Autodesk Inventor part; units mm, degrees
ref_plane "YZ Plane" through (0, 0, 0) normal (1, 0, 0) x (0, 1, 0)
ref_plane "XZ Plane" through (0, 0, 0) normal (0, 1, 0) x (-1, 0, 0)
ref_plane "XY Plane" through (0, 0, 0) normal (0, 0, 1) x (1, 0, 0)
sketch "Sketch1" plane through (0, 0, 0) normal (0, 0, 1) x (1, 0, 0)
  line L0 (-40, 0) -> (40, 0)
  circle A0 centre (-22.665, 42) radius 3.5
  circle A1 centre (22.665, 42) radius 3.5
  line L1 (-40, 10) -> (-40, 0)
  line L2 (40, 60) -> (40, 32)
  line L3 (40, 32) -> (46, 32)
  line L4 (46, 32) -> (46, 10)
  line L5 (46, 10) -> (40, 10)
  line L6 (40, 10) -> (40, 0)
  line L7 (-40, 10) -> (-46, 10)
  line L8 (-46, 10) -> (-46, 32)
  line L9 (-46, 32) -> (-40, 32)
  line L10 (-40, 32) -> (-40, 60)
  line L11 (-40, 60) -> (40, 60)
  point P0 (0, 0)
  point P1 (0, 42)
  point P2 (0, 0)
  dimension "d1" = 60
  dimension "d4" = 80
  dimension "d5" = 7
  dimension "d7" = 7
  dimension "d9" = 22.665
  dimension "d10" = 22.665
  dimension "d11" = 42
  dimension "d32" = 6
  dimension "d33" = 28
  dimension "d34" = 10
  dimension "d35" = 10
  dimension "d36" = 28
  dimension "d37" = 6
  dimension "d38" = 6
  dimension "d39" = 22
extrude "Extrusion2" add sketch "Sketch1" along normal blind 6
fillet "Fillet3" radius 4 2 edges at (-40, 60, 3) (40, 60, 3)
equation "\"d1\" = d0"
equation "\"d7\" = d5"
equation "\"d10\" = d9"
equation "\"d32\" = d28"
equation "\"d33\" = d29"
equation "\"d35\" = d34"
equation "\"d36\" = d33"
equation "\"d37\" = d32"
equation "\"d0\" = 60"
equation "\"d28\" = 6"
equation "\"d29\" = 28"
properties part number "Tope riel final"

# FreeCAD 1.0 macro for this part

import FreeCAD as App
import Part
import Sketcher
Q = App.Units.Quantity


def edges_at(feature, points):
    """Names of the edges that pass closest to the given points."""
    edges = feature.Shape.Edges
    near = lambda p: min(range(len(edges)), key=lambda i: edges[i].distToShape(Part.Vertex(*p))[0])
    return sorted({f"Edge{near(p) + 1}" for p in points})


def add_polygon(sketch, points):
    """Adds a closed chain of lines whose ends are joined by coincident constraints."""
    first, n = sketch.GeometryCount, len(points)
    for a, b in zip(points, points[1:] + points[:1]):
        sketch.addGeometry(Part.LineSegment(App.Vector(*a, 0), App.Vector(*b, 0)), False)
    for i in range(n):
        sketch.addConstraint(Sketcher.Constraint("Coincident", first + i, 2, first + (i + 1) % n, 1))

doc = App.newDocument("Part")
body = doc.addObject("PartDesign::Body", "Body")

# Sketch on XY plane
sketch1 = doc.addObject("Sketcher::SketchObject", "Sketch")
body.addObject(sketch1)
sketch1.AttachmentSupport = (doc.XY_Plane, [""])
sketch1.MapMode = "FlatFace"
add_polygon(sketch1, [(-40, 10), (-40, 0), (40, 0), (40, 10), (46, 10), (46, 32), (40, 32), (40, 60), (-40, 60), (-40, 32), (-46, 32), (-46, 10)])  # lines 0-11
sketch1.addGeometry(Part.Circle(App.Vector(-22.7, 42, 0), App.Vector(0, 0, 1), 3.5), False)  # 12
sketch1.addGeometry(Part.Circle(App.Vector(22.7, 42, 0), App.Vector(0, 0, 1), 3.5), False)  # 13
sketch1.addConstraint([
    Sketcher.Constraint("Vertical", 0),
    Sketcher.Constraint("Horizontal", 1),
    Sketcher.Constraint("Vertical", 2),
    Sketcher.Constraint("Horizontal", 3),
    Sketcher.Constraint("Vertical", 4),
    Sketcher.Constraint("Horizontal", 5),
    Sketcher.Constraint("Vertical", 6),
    Sketcher.Constraint("Horizontal", 7),
    Sketcher.Constraint("Vertical", 8),
    Sketcher.Constraint("Horizontal", 9),
    Sketcher.Constraint("Vertical", 10),
    Sketcher.Constraint("Horizontal", 11),
    Sketcher.Constraint("Equal", 12, 13),
    Sketcher.Constraint("Symmetric", 0, 2, 1, 2, -1, 1),
    Sketcher.Constraint("Symmetric", 12, 3, 13, 3, -2),
    Sketcher.Constraint("Symmetric", 5, 2, 8, 2, -2),
    Sketcher.Constraint("Symmetric", 3, 2, 10, 2, -2),
    Sketcher.Constraint("Vertical", 2, 2, 5, 2),
    Sketcher.Constraint("Diameter", 12, Q("7 mm")),
    Sketcher.Constraint("DistanceX", 1, 1, 1, 2, Q("80 mm")),
    Sketcher.Constraint("DistanceX", 3, 1, 3, 2, Q("6 mm")),
    Sketcher.Constraint("DistanceY", 0, 2, 0, 1, Q("10 mm")),
    Sketcher.Constraint("DistanceY", 4, 1, 4, 2, Q("22 mm")),
    Sketcher.Constraint("DistanceY", 6, 1, 6, 2, Q("28 mm")),
    Sketcher.Constraint("DistanceY", -1, 1, 12, 3, Q("42 mm")),
    Sketcher.Constraint("DistanceX", 12, 3, -1, 1, Q("22.665 mm")),
])
pad1 = doc.addObject("PartDesign::Pad", "Pad")
body.addObject(pad1)
pad1.Profile = sketch1
pad1.Length = 6
doc.recompute()

fillet = doc.addObject("PartDesign::Fillet", "Fillet")
body.addObject(fillet)
fillet.Base = (pad1, edges_at(pad1, [(-40, 60, 3), (40, 60, 3)]))
fillet.Radius = 4

doc.recompute()
